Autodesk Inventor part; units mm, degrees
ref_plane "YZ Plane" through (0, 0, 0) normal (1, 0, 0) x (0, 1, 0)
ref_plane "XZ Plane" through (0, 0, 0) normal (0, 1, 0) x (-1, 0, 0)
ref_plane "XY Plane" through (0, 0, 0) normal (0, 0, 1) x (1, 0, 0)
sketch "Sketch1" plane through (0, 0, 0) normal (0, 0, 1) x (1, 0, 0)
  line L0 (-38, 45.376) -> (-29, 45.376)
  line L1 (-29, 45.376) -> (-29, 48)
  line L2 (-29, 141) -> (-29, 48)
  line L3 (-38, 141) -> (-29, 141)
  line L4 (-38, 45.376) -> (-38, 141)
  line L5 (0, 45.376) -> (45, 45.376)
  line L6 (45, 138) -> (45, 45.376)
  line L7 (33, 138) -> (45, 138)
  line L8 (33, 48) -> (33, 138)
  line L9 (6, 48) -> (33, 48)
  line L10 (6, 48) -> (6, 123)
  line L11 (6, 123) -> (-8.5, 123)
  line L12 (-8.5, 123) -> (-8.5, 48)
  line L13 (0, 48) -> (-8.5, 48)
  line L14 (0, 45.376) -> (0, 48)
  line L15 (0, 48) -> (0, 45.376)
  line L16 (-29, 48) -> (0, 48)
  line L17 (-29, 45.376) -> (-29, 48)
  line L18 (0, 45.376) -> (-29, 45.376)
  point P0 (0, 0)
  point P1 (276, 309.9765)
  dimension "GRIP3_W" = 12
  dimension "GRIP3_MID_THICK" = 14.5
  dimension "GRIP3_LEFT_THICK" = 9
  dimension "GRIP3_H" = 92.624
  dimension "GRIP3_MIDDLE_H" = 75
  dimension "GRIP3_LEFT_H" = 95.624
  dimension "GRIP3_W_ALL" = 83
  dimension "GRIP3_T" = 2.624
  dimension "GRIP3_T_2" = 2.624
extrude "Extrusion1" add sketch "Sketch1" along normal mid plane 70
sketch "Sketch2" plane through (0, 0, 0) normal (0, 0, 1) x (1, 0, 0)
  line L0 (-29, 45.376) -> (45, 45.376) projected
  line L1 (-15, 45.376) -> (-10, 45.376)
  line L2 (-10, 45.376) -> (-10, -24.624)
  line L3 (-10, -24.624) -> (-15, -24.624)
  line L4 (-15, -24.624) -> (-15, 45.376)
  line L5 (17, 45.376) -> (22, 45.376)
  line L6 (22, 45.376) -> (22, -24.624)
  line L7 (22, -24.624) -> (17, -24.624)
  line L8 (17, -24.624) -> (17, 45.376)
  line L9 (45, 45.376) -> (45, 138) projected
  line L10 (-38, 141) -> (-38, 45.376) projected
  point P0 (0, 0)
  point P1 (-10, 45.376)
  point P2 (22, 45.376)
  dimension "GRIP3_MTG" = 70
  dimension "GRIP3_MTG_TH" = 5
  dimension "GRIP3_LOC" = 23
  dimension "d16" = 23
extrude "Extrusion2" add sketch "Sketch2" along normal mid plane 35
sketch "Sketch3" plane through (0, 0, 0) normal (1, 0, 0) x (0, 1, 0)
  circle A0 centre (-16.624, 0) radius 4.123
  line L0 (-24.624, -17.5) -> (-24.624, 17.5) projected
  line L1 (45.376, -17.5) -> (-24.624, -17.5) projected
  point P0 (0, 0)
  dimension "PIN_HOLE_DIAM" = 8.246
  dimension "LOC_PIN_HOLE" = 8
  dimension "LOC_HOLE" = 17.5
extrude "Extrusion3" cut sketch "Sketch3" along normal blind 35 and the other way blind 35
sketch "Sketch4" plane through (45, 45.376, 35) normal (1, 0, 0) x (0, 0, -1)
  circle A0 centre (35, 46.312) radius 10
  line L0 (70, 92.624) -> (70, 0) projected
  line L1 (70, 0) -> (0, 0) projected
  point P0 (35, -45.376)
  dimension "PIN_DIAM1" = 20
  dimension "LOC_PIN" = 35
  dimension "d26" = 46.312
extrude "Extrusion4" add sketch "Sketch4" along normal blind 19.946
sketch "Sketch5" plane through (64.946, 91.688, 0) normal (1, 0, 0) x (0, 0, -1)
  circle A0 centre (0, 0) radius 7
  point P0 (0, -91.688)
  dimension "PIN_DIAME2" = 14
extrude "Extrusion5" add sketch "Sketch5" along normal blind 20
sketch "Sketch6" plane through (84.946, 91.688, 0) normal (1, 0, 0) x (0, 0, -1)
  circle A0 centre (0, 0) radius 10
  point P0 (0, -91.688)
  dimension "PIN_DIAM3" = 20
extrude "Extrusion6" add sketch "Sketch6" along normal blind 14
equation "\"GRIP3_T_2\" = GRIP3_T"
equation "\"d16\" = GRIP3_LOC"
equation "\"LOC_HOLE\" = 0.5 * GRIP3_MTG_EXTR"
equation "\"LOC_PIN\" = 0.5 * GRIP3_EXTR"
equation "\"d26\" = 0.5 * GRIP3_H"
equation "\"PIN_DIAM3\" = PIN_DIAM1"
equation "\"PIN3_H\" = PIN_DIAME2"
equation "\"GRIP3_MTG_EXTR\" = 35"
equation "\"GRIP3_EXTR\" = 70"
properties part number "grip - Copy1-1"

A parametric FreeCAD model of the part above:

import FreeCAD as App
import Part
import Sketcher
from FreeCAD import Vector

doc = App.newDocument("Part")
body = doc.addObject("PartDesign::Body", "Body")

# Sketch on XY plane
sketch1 = body.newObject("Sketcher::SketchObject", "Sketch")
sketch1.AttachmentSupport = (doc.getObject("XY_Plane"), [""])
sketch1.MapMode = "FlatFace"
sketch1.addGeometry([
    Part.LineSegment(Vector(-38, 141, 0), Vector(-38, 45, 0)),  # 0
    Part.LineSegment(Vector(-38, 45, 0), Vector(45, 45, 0)),  # 1
    Part.LineSegment(Vector(45, 45, 0), Vector(45, 138, 0)),  # 2
    Part.LineSegment(Vector(45, 138, 0), Vector(33, 138, 0)),  # 3
    Part.LineSegment(Vector(33, 138, 0), Vector(33, 48, 0)),  # 4
    Part.LineSegment(Vector(33, 48, 0), Vector(6, 48, 0)),  # 5
    Part.LineSegment(Vector(6, 48, 0), Vector(6, 123, 0)),  # 6
    Part.LineSegment(Vector(6, 123, 0), Vector(-8, 123, 0)),  # 7
    Part.LineSegment(Vector(-8, 123, 0), Vector(-8, 48, 0)),  # 8
    Part.LineSegment(Vector(-8, 48, 0), Vector(-29, 48, 0)),  # 9
    Part.LineSegment(Vector(-29, 48, 0), Vector(-29, 141, 0)),  # 10
    Part.LineSegment(Vector(-29, 141, 0), Vector(-38, 141, 0)),  # 11
], False)
sketch1.addConstraint([
    Sketcher.Constraint("Coincident", 0, 2, 1, 1),
    Sketcher.Constraint("Coincident", 1, 2, 2, 1),
    Sketcher.Constraint("Coincident", 2, 2, 3, 1),
    Sketcher.Constraint("Coincident", 3, 2, 4, 1),
    Sketcher.Constraint("Coincident", 4, 2, 5, 1),
    Sketcher.Constraint("Coincident", 5, 2, 6, 1),
    Sketcher.Constraint("Coincident", 6, 2, 7, 1),
    Sketcher.Constraint("Coincident", 7, 2, 8, 1),
    Sketcher.Constraint("Coincident", 8, 2, 9, 1),
    Sketcher.Constraint("Coincident", 9, 2, 10, 1),
    Sketcher.Constraint("Coincident", 10, 2, 11, 1),
    Sketcher.Constraint("Coincident", 11, 2, 0, 1),
    Sketcher.Constraint("Vertical", 0),
    Sketcher.Constraint("Horizontal", 1),
    Sketcher.Constraint("Vertical", 2),
    Sketcher.Constraint("Horizontal", 3),
    Sketcher.Constraint("Vertical", 4),
    Sketcher.Constraint("Horizontal", 5),
    Sketcher.Constraint("Vertical", 6),
    Sketcher.Constraint("Horizontal", 7),
    Sketcher.Constraint("Vertical", 8),
    Sketcher.Constraint("Horizontal", 9),
    Sketcher.Constraint("Vertical", 10),
    Sketcher.Constraint("Horizontal", 11),
    Sketcher.Constraint("Horizontal", 5, 2, 8, 2),
    Sketcher.Constraint("DistanceX", 1, 1, 1, 2, 83.0),
    Sketcher.Constraint("DistanceX", 3, 2, 3, 1, 12.0),
    Sketcher.Constraint("DistanceX", 11, 2, 11, 1, 9.0),
    Sketcher.Constraint("DistanceY", 6, 1, 6, 2, 75.0),
    Sketcher.Constraint("DistanceX", 7, 2, 7, 1, 14.5),
    Sketcher.Constraint("DistanceX", 5, 2, 5, 1, 27.0),
    Sketcher.Constraint("DistanceY", 0, 2, 0, 1, 95.624),
    Sketcher.Constraint("DistanceY", 2, 1, 2, 2, 92.624),
    Sketcher.Constraint("DistanceY", 4, 2, 4, 1, 90.0),
    Sketcher.Constraint("DistanceX", 0, 2, -1, 1, 38.0),
    Sketcher.Constraint("DistanceY", -1, 1, 2, 2, 138.0),
])
pad1 = body.newObject("PartDesign::Pad", "Pad")
pad1.Profile = sketch1
pad1.Length = 70
pad1.Midplane = True

# Sketch on XY plane
sketch2 = body.newObject("Sketcher::SketchObject", "Sketch001")
sketch2.AttachmentSupport = (doc.getObject("XY_Plane"), [""])
sketch2.MapMode = "FlatFace"
sketch2.addGeometry([
    Part.LineSegment(Vector(22, 45, 0), Vector(17, 45, 0)),  # 0
    Part.LineSegment(Vector(17, 45, 0), Vector(17, -25, 0)),  # 1
    Part.LineSegment(Vector(17, -25, 0), Vector(22, -25, 0)),  # 2
    Part.LineSegment(Vector(22, -25, 0), Vector(22, 45, 0)),  # 3
    Part.LineSegment(Vector(-10, 45, 0), Vector(-15, 45, 0)),  # 4
    Part.LineSegment(Vector(-15, 45, 0), Vector(-15, -25, 0)),  # 5
    Part.LineSegment(Vector(-15, -25, 0), Vector(-10, -25, 0)),  # 6
    Part.LineSegment(Vector(-10, -25, 0), Vector(-10, 45, 0)),  # 7
], False)
sketch2.addConstraint([
    Sketcher.Constraint("Coincident", 0, 2, 1, 1),
    Sketcher.Constraint("Coincident", 1, 2, 2, 1),
    Sketcher.Constraint("Coincident", 2, 2, 3, 1),
    Sketcher.Constraint("Coincident", 3, 2, 0, 1),
    Sketcher.Constraint("Coincident", 4, 2, 5, 1),
    Sketcher.Constraint("Coincident", 5, 2, 6, 1),
    Sketcher.Constraint("Coincident", 6, 2, 7, 1),
    Sketcher.Constraint("Coincident", 7, 2, 4, 1),
    Sketcher.Constraint("Horizontal", 0),
    Sketcher.Constraint("Vertical", 1),
    Sketcher.Constraint("Horizontal", 2),
    Sketcher.Constraint("Vertical", 3),
    Sketcher.Constraint("Horizontal", 4),
    Sketcher.Constraint("Vertical", 5),
    Sketcher.Constraint("Horizontal", 6),
    Sketcher.Constraint("Vertical", 7),
    Sketcher.Constraint("Horizontal", 3, 2, 4, 2),
    Sketcher.Constraint("Horizontal", 2, 2, 5, 2),
    Sketcher.Constraint("Equal", 2, 4),
    Sketcher.Constraint("DistanceX", 0, 2, 0, 1, 5.0),
    Sketcher.Constraint("DistanceY", 1, 2, 1, 1, 70.0),
    Sketcher.Constraint("DistanceX", -1, 1, 0, 2, 17.0),
    Sketcher.Constraint("DistanceX", 4, 2, -1, 1, 15.0),
    Sketcher.Constraint("DistanceY", -1, 1, 0, 2, 45.376),
])
pad2 = body.newObject("PartDesign::Pad", "Pad001")
pad2.Profile = sketch2
pad2.Length = 35
pad2.Midplane = True

# Sketch on YZ plane
sketch3 = body.newObject("Sketcher::SketchObject", "Sketch002")
sketch3.AttachmentSupport = (doc.getObject("YZ_Plane"), [""])
sketch3.MapMode = "FlatFace"
sketch3.addGeometry(Part.Circle(Vector(-16.6, 0, 0), Vector(0, 0, 1), 4.1), False)
sketch3.addConstraint([
    Sketcher.Constraint("PointOnObject", 0, 3, -1),
    Sketcher.Constraint("Diameter", 0, 8.246),
    Sketcher.Constraint("DistanceX", 0, 3, -1, 1, 16.624),
])
pocket1 = body.newObject("PartDesign::Pocket", "Pocket")
pocket1.Profile = sketch3
pocket1.Type = "ThroughAll"
pocket1.Midplane = True

# Sketch on YZ plane
sketch4 = body.newObject("Sketcher::SketchObject", "Sketch003")
sketch4.AttachmentSupport = (doc.getObject("YZ_Plane"), [""])
sketch4.MapMode = "FlatFace"
sketch4.AttachmentOffset = App.Placement(Vector(0, 0, 45), App.Rotation())
sketch4.addGeometry(Part.Circle(Vector(92, 0, 0), Vector(0, 0, 1), 10), False)
sketch4.addConstraint([
    Sketcher.Constraint("PointOnObject", 0, 3, -1),
    Sketcher.Constraint("Diameter", 0, 20.0),
    Sketcher.Constraint("DistanceX", -1, 1, 0, 3, 91.688),
])
pad3 = body.newObject("PartDesign::Pad", "Pad002")
pad3.Profile = sketch4
pad3.Length = 19.946

# Sketch on YZ plane
sketch5 = body.newObject("Sketcher::SketchObject", "Sketch004")
sketch5.AttachmentSupport = (doc.getObject("YZ_Plane"), [""])
sketch5.MapMode = "FlatFace"
sketch5.AttachmentOffset = App.Placement(Vector(0, 0, 64.946), App.Rotation())
sketch5.addGeometry(Part.Circle(Vector(92, 0, 0), Vector(0, 0, 1), 7), False)
sketch5.addConstraint([
    Sketcher.Constraint("PointOnObject", 0, 3, -1),
    Sketcher.Constraint("Diameter", 0, 14.0),
    Sketcher.Constraint("DistanceX", -1, 1, 0, 3, 91.688),
])
pad4 = body.newObject("PartDesign::Pad", "Pad003")
pad4.Profile = sketch5
pad4.Length = 20

# Sketch on YZ plane
sketch6 = body.newObject("Sketcher::SketchObject", "Sketch005")
sketch6.AttachmentSupport = (doc.getObject("YZ_Plane"), [""])
sketch6.MapMode = "FlatFace"
sketch6.AttachmentOffset = App.Placement(Vector(0, 0, 84.946), App.Rotation())
sketch6.addGeometry(Part.Circle(Vector(92, 0, 0), Vector(0, 0, 1), 10), False)
sketch6.addConstraint([
    Sketcher.Constraint("PointOnObject", 0, 3, -1),
    Sketcher.Constraint("Diameter", 0, 20.0),
    Sketcher.Constraint("DistanceX", -1, 1, 0, 3, 91.688),
])
pad5 = body.newObject("PartDesign::Pad", "Pad004")
pad5.Profile = sketch6
pad5.Length = 14

doc.recompute()
